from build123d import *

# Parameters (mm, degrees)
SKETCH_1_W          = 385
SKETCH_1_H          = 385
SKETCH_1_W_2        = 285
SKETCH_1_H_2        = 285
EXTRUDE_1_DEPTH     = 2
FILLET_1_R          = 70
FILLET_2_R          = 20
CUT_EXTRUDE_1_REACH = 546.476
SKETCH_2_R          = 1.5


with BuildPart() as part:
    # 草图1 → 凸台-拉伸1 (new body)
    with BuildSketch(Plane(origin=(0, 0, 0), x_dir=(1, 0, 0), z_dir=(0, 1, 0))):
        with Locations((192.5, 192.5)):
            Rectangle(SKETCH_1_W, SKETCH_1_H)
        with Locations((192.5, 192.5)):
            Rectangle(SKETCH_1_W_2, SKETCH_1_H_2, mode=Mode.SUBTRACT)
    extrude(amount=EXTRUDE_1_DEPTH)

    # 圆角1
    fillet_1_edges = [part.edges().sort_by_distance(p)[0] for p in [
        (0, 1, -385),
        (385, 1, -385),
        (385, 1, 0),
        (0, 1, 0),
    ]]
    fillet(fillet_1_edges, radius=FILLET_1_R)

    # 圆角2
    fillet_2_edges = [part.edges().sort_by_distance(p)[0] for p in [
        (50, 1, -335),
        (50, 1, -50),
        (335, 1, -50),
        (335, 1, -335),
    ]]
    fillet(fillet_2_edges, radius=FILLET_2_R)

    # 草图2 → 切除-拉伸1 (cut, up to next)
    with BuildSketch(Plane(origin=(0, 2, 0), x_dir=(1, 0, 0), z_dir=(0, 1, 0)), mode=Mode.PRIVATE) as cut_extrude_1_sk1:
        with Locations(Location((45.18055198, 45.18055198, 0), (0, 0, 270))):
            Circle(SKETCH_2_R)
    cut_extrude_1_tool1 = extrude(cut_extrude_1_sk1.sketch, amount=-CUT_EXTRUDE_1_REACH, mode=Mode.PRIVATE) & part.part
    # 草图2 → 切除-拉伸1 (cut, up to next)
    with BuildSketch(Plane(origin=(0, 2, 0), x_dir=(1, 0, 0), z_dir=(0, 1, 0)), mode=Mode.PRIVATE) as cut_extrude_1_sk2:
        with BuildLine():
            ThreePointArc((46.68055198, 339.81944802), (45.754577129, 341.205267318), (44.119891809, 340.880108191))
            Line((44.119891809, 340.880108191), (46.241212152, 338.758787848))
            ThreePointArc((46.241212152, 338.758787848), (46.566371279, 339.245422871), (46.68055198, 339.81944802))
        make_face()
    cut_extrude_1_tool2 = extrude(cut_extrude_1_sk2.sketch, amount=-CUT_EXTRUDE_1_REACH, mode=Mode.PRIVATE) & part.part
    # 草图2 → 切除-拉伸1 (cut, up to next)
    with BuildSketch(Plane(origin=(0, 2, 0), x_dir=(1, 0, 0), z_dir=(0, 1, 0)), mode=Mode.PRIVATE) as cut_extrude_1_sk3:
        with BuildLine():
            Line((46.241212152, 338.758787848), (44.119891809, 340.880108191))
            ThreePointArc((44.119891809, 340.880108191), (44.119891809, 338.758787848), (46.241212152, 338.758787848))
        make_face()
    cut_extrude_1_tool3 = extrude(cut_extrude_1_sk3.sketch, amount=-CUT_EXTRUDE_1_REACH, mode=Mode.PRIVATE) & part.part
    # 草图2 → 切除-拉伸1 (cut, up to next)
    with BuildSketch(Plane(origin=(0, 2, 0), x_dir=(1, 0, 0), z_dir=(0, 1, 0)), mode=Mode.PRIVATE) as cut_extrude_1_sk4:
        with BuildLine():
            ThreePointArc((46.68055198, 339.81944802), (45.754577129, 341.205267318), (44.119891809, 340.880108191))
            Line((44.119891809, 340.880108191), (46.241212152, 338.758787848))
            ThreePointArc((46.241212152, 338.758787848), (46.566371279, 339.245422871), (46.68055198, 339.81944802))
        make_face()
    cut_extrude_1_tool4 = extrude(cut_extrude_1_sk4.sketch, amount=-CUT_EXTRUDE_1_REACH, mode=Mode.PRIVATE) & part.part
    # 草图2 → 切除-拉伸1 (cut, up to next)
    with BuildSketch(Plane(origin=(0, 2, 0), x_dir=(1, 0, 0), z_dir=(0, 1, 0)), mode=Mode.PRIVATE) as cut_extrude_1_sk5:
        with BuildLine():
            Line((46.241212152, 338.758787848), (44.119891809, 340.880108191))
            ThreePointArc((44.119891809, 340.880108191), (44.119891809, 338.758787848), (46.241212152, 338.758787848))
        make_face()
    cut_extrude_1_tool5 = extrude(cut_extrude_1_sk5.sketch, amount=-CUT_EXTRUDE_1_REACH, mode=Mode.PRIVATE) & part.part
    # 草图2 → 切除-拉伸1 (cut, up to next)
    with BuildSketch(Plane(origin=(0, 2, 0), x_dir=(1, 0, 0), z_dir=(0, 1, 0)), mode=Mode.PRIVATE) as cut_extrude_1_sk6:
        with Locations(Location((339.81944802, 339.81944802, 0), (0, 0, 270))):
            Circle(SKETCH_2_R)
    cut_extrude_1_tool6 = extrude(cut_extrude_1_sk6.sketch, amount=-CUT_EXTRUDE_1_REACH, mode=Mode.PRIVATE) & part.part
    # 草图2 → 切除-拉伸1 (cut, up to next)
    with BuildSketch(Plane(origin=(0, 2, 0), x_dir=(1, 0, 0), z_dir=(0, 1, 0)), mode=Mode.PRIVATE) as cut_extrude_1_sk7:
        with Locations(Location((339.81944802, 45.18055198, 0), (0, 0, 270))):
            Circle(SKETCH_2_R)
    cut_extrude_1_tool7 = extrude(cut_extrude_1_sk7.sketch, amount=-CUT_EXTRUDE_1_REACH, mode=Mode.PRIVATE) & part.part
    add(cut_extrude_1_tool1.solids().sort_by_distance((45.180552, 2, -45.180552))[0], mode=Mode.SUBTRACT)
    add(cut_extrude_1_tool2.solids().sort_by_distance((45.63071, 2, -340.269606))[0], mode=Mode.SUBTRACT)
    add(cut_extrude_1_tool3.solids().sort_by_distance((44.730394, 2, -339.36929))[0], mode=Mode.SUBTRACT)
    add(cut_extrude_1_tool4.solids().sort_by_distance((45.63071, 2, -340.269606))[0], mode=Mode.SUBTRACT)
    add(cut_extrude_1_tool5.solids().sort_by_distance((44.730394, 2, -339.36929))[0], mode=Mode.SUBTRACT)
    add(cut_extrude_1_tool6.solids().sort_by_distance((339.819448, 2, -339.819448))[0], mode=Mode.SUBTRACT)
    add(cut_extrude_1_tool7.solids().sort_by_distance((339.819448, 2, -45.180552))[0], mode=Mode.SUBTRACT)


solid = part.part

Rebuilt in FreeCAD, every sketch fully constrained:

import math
import FreeCAD as App
import Part
import Sketcher

V = App.Vector
Q = App.Units.Quantity


def edges_at(feature, points):
    """Names of the edges that pass closest to the given points."""
    edges = feature.Shape.Edges
    near = lambda p: min(range(len(edges)), key=lambda i: edges[i].distToShape(Part.Vertex(*p))[0])
    return sorted({f"Edge{near(p) + 1}" for p in points})


def add_polygon(sketch, points):
    """Adds a closed chain of lines whose ends are joined by coincident constraints."""
    first, n = sketch.GeometryCount, len(points)
    for a, b in zip(points, points[1:] + points[:1]):
        sketch.addGeometry(Part.LineSegment(App.Vector(*a, 0), App.Vector(*b, 0)), False)
    for i in range(n):
        sketch.addConstraint(Sketcher.Constraint("Coincident", first + i, 2, first + (i + 1) % n, 1))

doc = App.newDocument("Part")
params = doc.addObject("Spreadsheet::Sheet", "Params")
for row, (alias, value) in enumerate([
    ("sketch1_width", "385 mm"),
    ("sketch1_width2", "285 mm"),
    ("pad1_length", "2 mm"),
    ("fillet_radius", "70 mm"),
    ("fillet2_radius", "20 mm"),
    ("sketch2_diameter", "3 mm"),
    ("sketch3_radius", "1.5 mm"),
    ("sketch4_radius", "1.5 mm"),
    ("sketch5_radius", "1.5 mm"),
    ("pocket4_length", "2 mm"),
    ("sketch6_radius", "1.5 mm"),
    ("pocket5_length", "2 mm"),
    ("sketch7_diameter", "3 mm"),
    ("sketch8_diameter", "3 mm"),
], start=1):
    params.set(f"A{row}", alias)
    params.set(f"B{row}", "=" + value)
    params.setAlias(f"B{row}", alias)

body = doc.addObject("PartDesign::Body", "Body")

# Sketch on XZ plane
sketch1 = body.newObject("Sketcher::SketchObject", "Sketch")
sketch1.AttachmentSupport = (doc.getObject("XZ_Plane"), [""])
sketch1.MapMode = "FlatFace"
add_polygon(sketch1, [(0, -385), (0, 0), (385, 0), (385, -385)])  # lines 0-3
add_polygon(sketch1, [(335, -50), (50, -50), (50, -335), (335, -335)])  # lines 4-7
sketch1.addConstraint([
    Sketcher.Constraint("Vertical", 0),
    Sketcher.Constraint("Horizontal", 1),
    Sketcher.Constraint("Vertical", 2),
    Sketcher.Constraint("Horizontal", 3),
    Sketcher.Constraint("Horizontal", 4),
    Sketcher.Constraint("Vertical", 5),
    Sketcher.Constraint("Horizontal", 6),
    Sketcher.Constraint("Vertical", 7),
    Sketcher.Constraint("Coincident", 0, 2, -1, 1),
    Sketcher.Constraint("Equal", 3, 0),
    Sketcher.Constraint("Equal", 6, 5),
    Sketcher.Constraint("DistanceX", 1, 1, 1, 2, 385.0),
    Sketcher.Constraint("DistanceX", 4, 2, 4, 1, 285.0),
    Sketcher.Constraint("DistanceX", -1, 1, 4, 2, 50.0),
    Sketcher.Constraint("DistanceY", 4, 2, -1, 1, 50.0),
])
sketch1.setExpression("Constraints[19]", "Params.sketch1_width")
sketch1.setExpression("Constraints[20]", "Params.sketch1_width2")
pad1 = body.newObject("PartDesign::Pad", "Pad")
pad1.Profile = sketch1
pad1.setExpression("Length", "Params.pad1_length")
pad1.Reversed = True
doc.recompute()

fillet = body.newObject("PartDesign::Fillet", "Fillet")
fillet.Base = (pad1, edges_at(pad1, [
    (0, 1, -385),
    (385, 1, -385),
    (385, 1, 0),
    (0, 1, 0),
]))
fillet.setExpression("Radius", "Params.fillet_radius")
doc.recompute()

fillet2 = body.newObject("PartDesign::Fillet", "Fillet001")
fillet2.Base = (fillet, edges_at(fillet, [
    (50, 1, -335),
    (50, 1, -50),
    (335, 1, -50),
    (335, 1, -335),
]))
fillet2.setExpression("Radius", "Params.fillet2_radius")

# Sketch on XZ plane
sketch2 = body.newObject("Sketcher::SketchObject", "Sketch001")
sketch2.AttachmentSupport = (doc.getObject("XZ_Plane"), [""])
sketch2.MapMode = "FlatFace"
sketch2.AttachmentOffset = App.Placement(V(0, 0, -2), App.Rotation())
sketch2.addGeometry(Part.Circle(V(45.180552, -45.180552, 0), V(0, 0, 1), 1.5), False)
sketch2.addConstraint([
    Sketcher.Constraint("Diameter", 0, 3.0),
    Sketcher.Constraint("DistanceX", -1, 1, 0, 3, 45.180552),
    Sketcher.Constraint("DistanceY", 0, 3, -1, 1, 45.180552),
])
sketch2.setExpression("Constraints[0]", "Params.sketch2_diameter")
pocket1 = body.newObject("PartDesign::Pocket", "Pocket")
pocket1.Profile = sketch2
pocket1.Type = "UpToFirst"
pocket1.Reversed = True

# Sketch on XZ plane
sketch3 = body.newObject("Sketcher::SketchObject", "Sketch002")
sketch3.AttachmentSupport = (doc.getObject("XZ_Plane"), [""])
sketch3.MapMode = "FlatFace"
sketch3.AttachmentOffset = App.Placement(V(0, 0, -2), App.Rotation())
sketch3.addGeometry([
    Part.ArcOfCircle(Part.Circle(V(45.180552, -339.819448, 0), V(0, 0, 1), 1.5), math.radians(-135), math.radians(0)),
    Part.LineSegment(V(44.119892, -340.880108, 0), V(46.241212, -338.758788, 0)),
    Part.ArcOfCircle(Part.Circle(V(45.180552, -339.819448, 0), V(0, 0, 1), 1.5), math.radians(0), math.radians(45)),
], False)
sketch3.addConstraint([
    Sketcher.Constraint("Coincident", 0, 1, 1, 1),
    Sketcher.Constraint("Coincident", 1, 2, 2, 2),
    Sketcher.Constraint("Tangent", 2, 1, 0, 2),
    Sketcher.Constraint("Equal", 0, 2),
    Sketcher.Constraint("Horizontal", 0, 3, 2, 1),
    Sketcher.Constraint("Radius", 0, 1.5),
    Sketcher.Constraint("Angle", 1, Q("45 deg")),
    Sketcher.Constraint("DistanceX", -1, 1, 0, 3, 45.180552),
    Sketcher.Constraint("DistanceY", 0, 3, -1, 1, 339.819448),
    Sketcher.Constraint("DistanceX", -1, 1, 0, 1, 44.119892),
])
sketch3.setExpression("Constraints[5]", "Params.sketch3_radius")
pocket2 = body.newObject("PartDesign::Pocket", "Pocket001")
pocket2.Profile = sketch3
pocket2.Type = "UpToFirst"
pocket2.Reversed = True

# Sketch on XZ plane
sketch4 = body.newObject("Sketcher::SketchObject", "Sketch003")
sketch4.AttachmentSupport = (doc.getObject("XZ_Plane"), [""])
sketch4.MapMode = "FlatFace"
sketch4.AttachmentOffset = App.Placement(V(0, 0, -2), App.Rotation())
sketch4.addGeometry([
    Part.LineSegment(V(46.241212, -338.758788, 0), V(44.119892, -340.880108, 0)),
    Part.ArcOfCircle(Part.Circle(V(45.180552, -339.819448, 0), V(0, 0, 1), 1.5), math.radians(45), math.radians(225)),
], False)
sketch4.addConstraint([
    Sketcher.Constraint("Coincident", 0, 1, 1, 1),
    Sketcher.Constraint("Coincident", 1, 2, 0, 2),
    Sketcher.Constraint("Radius", 1, 1.5),
    Sketcher.Constraint("Angle", 0, Q("-135 deg")),
    Sketcher.Constraint("DistanceX", -1, 1, 1, 3, 45.180552),
    Sketcher.Constraint("DistanceY", 1, 3, -1, 1, 339.819448),
    Sketcher.Constraint("DistanceX", -1, 1, 1, 2, 44.119892),
])
sketch4.setExpression("Constraints[2]", "Params.sketch4_radius")
pocket3 = body.newObject("PartDesign::Pocket", "Pocket002")
pocket3.Profile = sketch4
pocket3.Type = "UpToFirst"
pocket3.Reversed = True

# Sketch on XZ plane
sketch5 = body.newObject("Sketcher::SketchObject", "Sketch004")
sketch5.AttachmentSupport = (doc.getObject("XZ_Plane"), [""])
sketch5.MapMode = "FlatFace"
sketch5.AttachmentOffset = App.Placement(V(0, 0, -2), App.Rotation())
sketch5.addGeometry([
    Part.ArcOfCircle(Part.Circle(V(45.180552, -339.819448, 0), V(0, 0, 1), 1.5), math.radians(-135), math.radians(0)),
    Part.LineSegment(V(44.119892, -340.880108, 0), V(46.241212, -338.758788, 0)),
    Part.ArcOfCircle(Part.Circle(V(45.180552, -339.819448, 0), V(0, 0, 1), 1.5), math.radians(0), math.radians(45)),
], False)
sketch5.addConstraint([
    Sketcher.Constraint("Coincident", 0, 1, 1, 1),
    Sketcher.Constraint("Coincident", 1, 2, 2, 2),
    Sketcher.Constraint("Tangent", 2, 1, 0, 2),
    Sketcher.Constraint("Equal", 0, 2),
    Sketcher.Constraint("Horizontal", 0, 3, 2, 1),
    Sketcher.Constraint("Radius", 0, 1.5),
    Sketcher.Constraint("Angle", 1, Q("45 deg")),
    Sketcher.Constraint("DistanceX", -1, 1, 0, 3, 45.180552),
    Sketcher.Constraint("DistanceY", 0, 3, -1, 1, 339.819448),
    Sketcher.Constraint("DistanceX", -1, 1, 0, 1, 44.119892),
])
sketch5.setExpression("Constraints[5]", "Params.sketch5_radius")
pocket4 = body.newObject("PartDesign::Pocket", "Pocket003")
pocket4.Profile = sketch5
pocket4.setExpression("Length", "Params.pocket4_length")
pocket4.Reversed = True

# Sketch on XZ plane
sketch6 = body.newObject("Sketcher::SketchObject", "Sketch005")
sketch6.AttachmentSupport = (doc.getObject("XZ_Plane"), [""])
sketch6.MapMode = "FlatFace"
sketch6.AttachmentOffset = App.Placement(V(0, 0, -2), App.Rotation())
sketch6.addGeometry([
    Part.LineSegment(V(46.241212, -338.758788, 0), V(44.119892, -340.880108, 0)),
    Part.ArcOfCircle(Part.Circle(V(45.180552, -339.819448, 0), V(0, 0, 1), 1.5), math.radians(45), math.radians(225)),
], False)
sketch6.addConstraint([
    Sketcher.Constraint("Coincident", 0, 1, 1, 1),
    Sketcher.Constraint("Coincident", 1, 2, 0, 2),
    Sketcher.Constraint("Radius", 1, 1.5),
    Sketcher.Constraint("Angle", 0, Q("-135 deg")),
    Sketcher.Constraint("DistanceX", -1, 1, 1, 3, 45.180552),
    Sketcher.Constraint("DistanceY", 1, 3, -1, 1, 339.819448),
    Sketcher.Constraint("DistanceX", -1, 1, 1, 2, 44.119892),
])
sketch6.setExpression("Constraints[2]", "Params.sketch6_radius")
pocket5 = body.newObject("PartDesign::Pocket", "Pocket004")
pocket5.Profile = sketch6
pocket5.setExpression("Length", "Params.pocket5_length")
pocket5.Reversed = True

# Sketch on XZ plane
sketch7 = body.newObject("Sketcher::SketchObject", "Sketch006")
sketch7.AttachmentSupport = (doc.getObject("XZ_Plane"), [""])
sketch7.MapMode = "FlatFace"
sketch7.AttachmentOffset = App.Placement(V(0, 0, -2), App.Rotation())
sketch7.addGeometry(Part.Circle(V(339.819448, -339.819448, 0), V(0, 0, 1), 1.5), False)
sketch7.addConstraint([
    Sketcher.Constraint("Diameter", 0, 3.0),
    Sketcher.Constraint("DistanceX", -1, 1, 0, 3, 339.819448),
    Sketcher.Constraint("DistanceY", 0, 3, -1, 1, 339.819448),
])
sketch7.setExpression("Constraints[0]", "Params.sketch7_diameter")
pocket6 = body.newObject("PartDesign::Pocket", "Pocket005")
pocket6.Profile = sketch7
pocket6.Type = "UpToFirst"
pocket6.Reversed = True

# Sketch on XZ plane
sketch8 = body.newObject("Sketcher::SketchObject", "Sketch007")
sketch8.AttachmentSupport = (doc.getObject("XZ_Plane"), [""])
sketch8.MapMode = "FlatFace"
sketch8.AttachmentOffset = App.Placement(V(0, 0, -2), App.Rotation())
sketch8.addGeometry(Part.Circle(V(339.819448, -45.180552, 0), V(0, 0, 1), 1.5), False)
sketch8.addConstraint([
    Sketcher.Constraint("Diameter", 0, 3.0),
    Sketcher.Constraint("DistanceX", -1, 1, 0, 3, 339.819448),
    Sketcher.Constraint("DistanceY", 0, 3, -1, 1, 45.180552),
])
sketch8.setExpression("Constraints[0]", "Params.sketch8_diameter")
pocket7 = body.newObject("PartDesign::Pocket", "Pocket006")
pocket7.Profile = sketch8
pocket7.Type = "UpToFirst"
pocket7.Reversed = True

doc.recompute()
